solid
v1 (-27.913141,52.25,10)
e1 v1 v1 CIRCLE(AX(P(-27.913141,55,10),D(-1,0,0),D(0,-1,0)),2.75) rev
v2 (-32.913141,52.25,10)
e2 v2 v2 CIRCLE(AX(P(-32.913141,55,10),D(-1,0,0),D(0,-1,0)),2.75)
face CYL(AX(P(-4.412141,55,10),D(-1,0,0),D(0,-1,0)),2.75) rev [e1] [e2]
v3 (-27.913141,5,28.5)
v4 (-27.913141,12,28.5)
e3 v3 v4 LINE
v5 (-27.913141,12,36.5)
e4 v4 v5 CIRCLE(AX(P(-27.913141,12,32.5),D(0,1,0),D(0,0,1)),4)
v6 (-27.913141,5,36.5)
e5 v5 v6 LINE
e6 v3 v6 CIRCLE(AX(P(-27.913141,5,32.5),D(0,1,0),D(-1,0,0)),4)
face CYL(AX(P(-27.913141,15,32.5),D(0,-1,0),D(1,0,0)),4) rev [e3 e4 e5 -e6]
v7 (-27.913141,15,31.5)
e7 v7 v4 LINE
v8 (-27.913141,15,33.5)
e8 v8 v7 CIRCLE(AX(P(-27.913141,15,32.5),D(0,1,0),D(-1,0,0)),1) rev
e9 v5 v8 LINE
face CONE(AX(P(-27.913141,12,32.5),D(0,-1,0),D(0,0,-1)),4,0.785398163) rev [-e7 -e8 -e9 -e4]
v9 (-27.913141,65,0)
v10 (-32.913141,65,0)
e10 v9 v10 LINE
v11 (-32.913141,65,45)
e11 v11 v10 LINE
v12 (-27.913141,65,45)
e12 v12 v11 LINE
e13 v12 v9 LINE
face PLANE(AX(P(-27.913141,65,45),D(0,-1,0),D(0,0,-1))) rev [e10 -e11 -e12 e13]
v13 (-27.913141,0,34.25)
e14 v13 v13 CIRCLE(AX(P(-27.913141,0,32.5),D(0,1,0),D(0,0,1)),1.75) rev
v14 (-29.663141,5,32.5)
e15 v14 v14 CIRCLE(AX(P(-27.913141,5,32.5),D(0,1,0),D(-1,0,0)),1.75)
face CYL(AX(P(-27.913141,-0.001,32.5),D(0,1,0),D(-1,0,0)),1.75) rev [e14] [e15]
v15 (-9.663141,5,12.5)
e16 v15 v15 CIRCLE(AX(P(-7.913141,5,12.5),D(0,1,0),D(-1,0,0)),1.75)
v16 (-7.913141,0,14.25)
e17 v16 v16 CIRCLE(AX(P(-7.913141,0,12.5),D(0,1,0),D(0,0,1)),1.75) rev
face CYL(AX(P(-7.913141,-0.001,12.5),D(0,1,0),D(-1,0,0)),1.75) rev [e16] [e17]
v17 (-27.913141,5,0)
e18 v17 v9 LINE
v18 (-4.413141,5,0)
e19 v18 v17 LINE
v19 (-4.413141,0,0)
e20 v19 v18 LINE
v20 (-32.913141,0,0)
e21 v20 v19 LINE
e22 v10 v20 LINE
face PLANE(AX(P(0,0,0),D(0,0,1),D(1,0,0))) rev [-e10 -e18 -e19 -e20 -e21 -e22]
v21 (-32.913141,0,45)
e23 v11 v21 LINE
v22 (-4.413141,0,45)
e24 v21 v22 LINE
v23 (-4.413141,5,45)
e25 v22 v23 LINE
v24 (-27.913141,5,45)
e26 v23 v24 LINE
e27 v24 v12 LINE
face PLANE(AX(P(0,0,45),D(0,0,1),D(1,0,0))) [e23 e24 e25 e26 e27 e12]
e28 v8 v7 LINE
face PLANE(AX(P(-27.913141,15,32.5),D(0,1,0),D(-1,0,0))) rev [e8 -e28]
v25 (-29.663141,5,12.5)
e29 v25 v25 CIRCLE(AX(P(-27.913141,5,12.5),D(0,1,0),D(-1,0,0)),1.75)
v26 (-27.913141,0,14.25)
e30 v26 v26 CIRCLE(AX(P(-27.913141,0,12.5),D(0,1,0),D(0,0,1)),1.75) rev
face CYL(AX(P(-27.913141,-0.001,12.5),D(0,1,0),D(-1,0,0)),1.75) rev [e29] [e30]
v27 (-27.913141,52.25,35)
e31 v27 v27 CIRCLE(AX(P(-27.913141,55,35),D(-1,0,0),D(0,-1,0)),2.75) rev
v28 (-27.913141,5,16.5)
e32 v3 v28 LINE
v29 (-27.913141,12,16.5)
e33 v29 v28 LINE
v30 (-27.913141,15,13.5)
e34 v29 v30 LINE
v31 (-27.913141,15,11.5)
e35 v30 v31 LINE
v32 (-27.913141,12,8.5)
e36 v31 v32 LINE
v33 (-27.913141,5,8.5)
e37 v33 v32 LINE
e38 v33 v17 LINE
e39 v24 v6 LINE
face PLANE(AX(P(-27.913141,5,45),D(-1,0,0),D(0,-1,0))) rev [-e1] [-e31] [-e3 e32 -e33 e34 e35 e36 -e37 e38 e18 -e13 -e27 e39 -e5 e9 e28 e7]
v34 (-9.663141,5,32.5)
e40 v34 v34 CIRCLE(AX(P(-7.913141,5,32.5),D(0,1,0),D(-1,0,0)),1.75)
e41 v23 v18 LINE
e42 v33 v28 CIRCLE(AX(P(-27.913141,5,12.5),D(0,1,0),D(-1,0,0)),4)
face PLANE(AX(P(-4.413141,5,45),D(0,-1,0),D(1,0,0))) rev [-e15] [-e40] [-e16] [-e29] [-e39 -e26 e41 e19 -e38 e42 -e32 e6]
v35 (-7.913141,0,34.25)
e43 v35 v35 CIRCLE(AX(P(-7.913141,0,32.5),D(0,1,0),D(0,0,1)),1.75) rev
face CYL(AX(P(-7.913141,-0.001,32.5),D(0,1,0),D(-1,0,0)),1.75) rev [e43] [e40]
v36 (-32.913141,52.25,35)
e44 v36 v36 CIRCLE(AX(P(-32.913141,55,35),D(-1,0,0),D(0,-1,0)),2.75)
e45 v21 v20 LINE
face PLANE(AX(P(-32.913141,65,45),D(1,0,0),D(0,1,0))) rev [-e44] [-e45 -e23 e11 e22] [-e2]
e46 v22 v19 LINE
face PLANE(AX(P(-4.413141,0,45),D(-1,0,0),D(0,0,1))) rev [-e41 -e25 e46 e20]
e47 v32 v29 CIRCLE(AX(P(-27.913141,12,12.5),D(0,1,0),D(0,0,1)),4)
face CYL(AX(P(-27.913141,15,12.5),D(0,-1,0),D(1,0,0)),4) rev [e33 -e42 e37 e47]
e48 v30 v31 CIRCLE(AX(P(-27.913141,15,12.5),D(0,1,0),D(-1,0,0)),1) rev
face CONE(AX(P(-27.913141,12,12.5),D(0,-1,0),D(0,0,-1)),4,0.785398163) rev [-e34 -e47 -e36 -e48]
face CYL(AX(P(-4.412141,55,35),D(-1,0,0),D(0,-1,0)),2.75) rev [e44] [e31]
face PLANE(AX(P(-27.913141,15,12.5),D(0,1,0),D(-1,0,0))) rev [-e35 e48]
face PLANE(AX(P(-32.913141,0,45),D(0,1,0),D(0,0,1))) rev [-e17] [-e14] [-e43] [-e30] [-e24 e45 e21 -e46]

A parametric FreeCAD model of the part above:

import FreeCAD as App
import Part
import Sketcher
Q = App.Units.Quantity


def edges_at(feature, points):
    """Names of the edges that pass closest to the given points."""
    edges = feature.Shape.Edges
    near = lambda p: min(range(len(edges)), key=lambda i: edges[i].distToShape(Part.Vertex(*p))[0])
    return sorted({f"Edge{near(p) + 1}" for p in points})

doc = App.newDocument("Part")
params = doc.addObject("Spreadsheet::Sheet", "Params")
for row, (alias, value) in enumerate([
    ("sketch1_width", "5 mm"),
    ("sketch1_height", "60 mm"),
    ("sketch1_width2", "28.5 mm"),
    ("pad1_length", "45 mm"),
    ("sketch2_diameter", "3.5 mm"),
    ("sketch3_diameter", "3.5 mm"),
    ("sketch4_diameter", "3.5 mm"),
    ("sketch5_diameter", "3.5 mm"),
    ("sketch6_diameter", "5.5 mm"),
    ("sketch7_diameter", "5.5 mm"),
    ("sketch8_diameter", "8 mm"),
    ("pocket7_length", "10 mm"),
    ("chamfer_size", "3 mm"),
], start=1):
    params.set(f"A{row}", alias)
    params.set(f"B{row}", "=" + value)
    params.setAlias(f"B{row}", alias)

body = doc.addObject("PartDesign::Body", "Body")

# Sketch on XY plane
sketch1 = body.newObject("Sketcher::SketchObject", "Sketch")
sketch1.AttachmentSupport = (doc.getObject("XY_Plane"), [""])
sketch1.MapMode = "FlatFace"
sketch1.addGeometry(Part.LineSegment(App.Vector(-33, 0, 0), App.Vector(-4, 0, 0)), False)
sketch1.addGeometry(Part.LineSegment(App.Vector(-4, 0, 0), App.Vector(-4, 5, 0)), False)
sketch1.addGeometry(Part.LineSegment(App.Vector(-4, 5, 0), App.Vector(-28, 5, 0)), False)
sketch1.addGeometry(Part.LineSegment(App.Vector(-28, 5, 0), App.Vector(-28, 65, 0)), False)
sketch1.addGeometry(Part.LineSegment(App.Vector(-28, 65, 0), App.Vector(-33, 65, 0)), False)
sketch1.addGeometry(Part.LineSegment(App.Vector(-33, 65, 0), App.Vector(-33, 0, 0)), False)
sketch1.addConstraint(Sketcher.Constraint("Coincident", 0, 2, 1, 1))
sketch1.addConstraint(Sketcher.Constraint("Coincident", 1, 2, 2, 1))
sketch1.addConstraint(Sketcher.Constraint("Coincident", 2, 2, 3, 1))
sketch1.addConstraint(Sketcher.Constraint("Coincident", 3, 2, 4, 1))
sketch1.addConstraint(Sketcher.Constraint("Coincident", 4, 2, 5, 1))
sketch1.addConstraint(Sketcher.Constraint("Coincident", 5, 2, 0, 1))
sketch1.addConstraint(Sketcher.Constraint("Horizontal", 0))
sketch1.addConstraint(Sketcher.Constraint("Vertical", 1))
sketch1.addConstraint(Sketcher.Constraint("Horizontal", 2))
sketch1.addConstraint(Sketcher.Constraint("Vertical", 3))
sketch1.addConstraint(Sketcher.Constraint("Horizontal", 4))
sketch1.addConstraint(Sketcher.Constraint("Vertical", 5))
sketch1.addConstraint(Sketcher.Constraint("PointOnObject", 0, 2, -1))
sketch1.addConstraint(Sketcher.Constraint("Equal", 4, 1))
sketch1.addConstraint(Sketcher.Constraint("DistanceX", 4, 2, 4, 1, Q("5 mm")))
sketch1.addConstraint(Sketcher.Constraint("DistanceY", 3, 1, 3, 2, Q("60 mm")))
sketch1.addConstraint(Sketcher.Constraint("DistanceX", 0, 1, 0, 2, Q("28.5 mm")))
sketch1.addConstraint(Sketcher.Constraint("DistanceX", 0, 2, -1, 1, Q("4.413141 mm")))
sketch1.setExpression("Constraints[14]", "Params.sketch1_width")
sketch1.setExpression("Constraints[15]", "Params.sketch1_height")
sketch1.setExpression("Constraints[16]", "Params.sketch1_width2")
pad1 = body.newObject("PartDesign::Pad", "Pad")
pad1.Profile = sketch1
pad1.setExpression("Length", "Params.pad1_length")

# Sketch on XZ plane
sketch2 = body.newObject("Sketcher::SketchObject", "Sketch001")
sketch2.AttachmentSupport = (doc.getObject("XZ_Plane"), [""])
sketch2.MapMode = "FlatFace"
sketch2.AttachmentOffset = App.Placement(App.Vector(0, 0, -5), App.Rotation())
sketch2.addGeometry(Part.Circle(App.Vector(-27.9, 32.5, 0), App.Vector(0, 0, 1), 1.8), False)
sketch2.addConstraint(Sketcher.Constraint("Diameter", 0, Q("3.5 mm")))
sketch2.addConstraint(Sketcher.Constraint("DistanceY", -1, 1, 0, 3, Q("32.5 mm")))
sketch2.addConstraint(Sketcher.Constraint("DistanceX", 0, 3, -1, 1, Q("27.913141 mm")))
sketch2.setExpression("Constraints[0]", "Params.sketch2_diameter")
pocket1 = body.newObject("PartDesign::Pocket", "Pocket")
pocket1.Profile = sketch2
pocket1.Type = "UpToFirst"
pocket1.Reversed = True

# Sketch on XZ plane
sketch3 = body.newObject("Sketcher::SketchObject", "Sketch002")
sketch3.AttachmentSupport = (doc.getObject("XZ_Plane"), [""])
sketch3.MapMode = "FlatFace"
sketch3.AttachmentOffset = App.Placement(App.Vector(0, 0, -5), App.Rotation())
sketch3.addGeometry(Part.Circle(App.Vector(-27.9, 12.5, 0), App.Vector(0, 0, 1), 1.8), False)
sketch3.addConstraint(Sketcher.Constraint("Diameter", 0, Q("3.5 mm")))
sketch3.addConstraint(Sketcher.Constraint("DistanceY", -1, 1, 0, 3, Q("12.5 mm")))
sketch3.addConstraint(Sketcher.Constraint("DistanceX", 0, 3, -1, 1, Q("27.913141 mm")))
sketch3.setExpression("Constraints[0]", "Params.sketch3_diameter")
pocket2 = body.newObject("PartDesign::Pocket", "Pocket001")
pocket2.Profile = sketch3
pocket2.Type = "UpToFirst"
pocket2.Reversed = True

# Sketch on XZ plane
sketch4 = body.newObject("Sketcher::SketchObject", "Sketch003")
sketch4.AttachmentSupport = (doc.getObject("XZ_Plane"), [""])
sketch4.MapMode = "FlatFace"
sketch4.AttachmentOffset = App.Placement(App.Vector(0, 0, -5), App.Rotation())
sketch4.addGeometry(Part.Circle(App.Vector(-7.9, 12.5, 0), App.Vector(0, 0, 1), 1.8), False)
sketch4.addConstraint(Sketcher.Constraint("Diameter", 0, Q("3.5 mm")))
sketch4.addConstraint(Sketcher.Constraint("DistanceY", -1, 1, 0, 3, Q("12.5 mm")))
sketch4.addConstraint(Sketcher.Constraint("DistanceX", 0, 3, -1, 1, Q("7.913141 mm")))
sketch4.setExpression("Constraints[0]", "Params.sketch4_diameter")
pocket3 = body.newObject("PartDesign::Pocket", "Pocket002")
pocket3.Profile = sketch4
pocket3.Type = "UpToFirst"
pocket3.Reversed = True

# Sketch on XZ plane
sketch5 = body.newObject("Sketcher::SketchObject", "Sketch004")
sketch5.AttachmentSupport = (doc.getObject("XZ_Plane"), [""])
sketch5.MapMode = "FlatFace"
sketch5.AttachmentOffset = App.Placement(App.Vector(0, 0, -5), App.Rotation())
sketch5.addGeometry(Part.Circle(App.Vector(-7.9, 32.5, 0), App.Vector(0, 0, 1), 1.8), False)
sketch5.addConstraint(Sketcher.Constraint("Diameter", 0, Q("3.5 mm")))
sketch5.addConstraint(Sketcher.Constraint("DistanceY", -1, 1, 0, 3, Q("32.5 mm")))
sketch5.addConstraint(Sketcher.Constraint("DistanceX", 0, 3, -1, 1, Q("7.913141 mm")))
sketch5.setExpression("Constraints[0]", "Params.sketch5_diameter")
pocket4 = body.newObject("PartDesign::Pocket", "Pocket003")
pocket4.Profile = sketch5
pocket4.Type = "UpToFirst"
pocket4.Reversed = True

# Sketch on YZ plane
sketch6 = body.newObject("Sketcher::SketchObject", "Sketch005")
sketch6.AttachmentSupport = (doc.getObject("YZ_Plane"), [""])
sketch6.MapMode = "FlatFace"
sketch6.AttachmentOffset = App.Placement(App.Vector(0, 0, -32.913141), App.Rotation())
sketch6.addGeometry(Part.Circle(App.Vector(55, 10, 0), App.Vector(0, 0, 1), 2.8), False)
sketch6.addConstraint(Sketcher.Constraint("Diameter", 0, Q("5.5 mm")))
sketch6.addConstraint(Sketcher.Constraint("DistanceX", -1, 1, 0, 3, Q("55 mm")))
sketch6.addConstraint(Sketcher.Constraint("DistanceY", -1, 1, 0, 3, Q("10 mm")))
sketch6.setExpression("Constraints[0]", "Params.sketch6_diameter")
pocket5 = body.newObject("PartDesign::Pocket", "Pocket004")
pocket5.Profile = sketch6
pocket5.Type = "UpToFirst"
pocket5.Reversed = True

# Sketch on YZ plane
sketch7 = body.newObject("Sketcher::SketchObject", "Sketch006")
sketch7.AttachmentSupport = (doc.getObject("YZ_Plane"), [""])
sketch7.MapMode = "FlatFace"
sketch7.AttachmentOffset = App.Placement(App.Vector(0, 0, -32.913141), App.Rotation())
sketch7.addGeometry(Part.Circle(App.Vector(55, 35, 0), App.Vector(0, 0, 1), 2.8), False)
sketch7.addConstraint(Sketcher.Constraint("Diameter", 0, Q("5.5 mm")))
sketch7.addConstraint(Sketcher.Constraint("DistanceX", -1, 1, 0, 3, Q("55 mm")))
sketch7.addConstraint(Sketcher.Constraint("DistanceY", -1, 1, 0, 3, Q("35 mm")))
sketch7.setExpression("Constraints[0]", "Params.sketch7_diameter")
pocket6 = body.newObject("PartDesign::Pocket", "Pocket005")
pocket6.Profile = sketch7
pocket6.Type = "UpToFirst"
pocket6.Reversed = True

# Sketch on XZ plane
sketch8 = body.newObject("Sketcher::SketchObject", "Sketch007")
sketch8.AttachmentSupport = (doc.getObject("XZ_Plane"), [""])
sketch8.MapMode = "FlatFace"
sketch8.AttachmentOffset = App.Placement(App.Vector(0, 0, -5), App.Rotation())
sketch8.addGeometry(Part.Circle(App.Vector(-27.9, 32.5, 0), App.Vector(0, 0, 1), 4), False)
sketch8.addGeometry(Part.Circle(App.Vector(-27.9, 12.5, 0), App.Vector(0, 0, 1), 4), False)
sketch8.addConstraint(Sketcher.Constraint("Equal", 0, 1))
sketch8.addConstraint(Sketcher.Constraint("Vertical", 0, 3, 1, 3))
sketch8.addConstraint(Sketcher.Constraint("Diameter", 0, Q("8 mm")))
sketch8.addConstraint(Sketcher.Constraint("DistanceY", 1, 3, 0, 3, Q("20 mm")))
sketch8.addConstraint(Sketcher.Constraint("DistanceY", -1, 1, 0, 3, Q("32.5 mm")))
sketch8.addConstraint(Sketcher.Constraint("DistanceX", 0, 3, -1, 1, Q("27.913141 mm")))
sketch8.setExpression("Constraints[2]", "Params.sketch8_diameter")
pocket7 = body.newObject("PartDesign::Pocket", "Pocket006")
pocket7.Profile = sketch8
pocket7.setExpression("Length", "Params.pocket7_length")
doc.recompute()

chamfer = body.newObject("PartDesign::Chamfer", "Chamfer")
chamfer.Base = (pocket7, edges_at(pocket7, [(-31.913, 15, 32.5), (-31.913, 15, 12.5)]))
chamfer.setExpression("Size", "Params.chamfer_size")

doc.recompute()
